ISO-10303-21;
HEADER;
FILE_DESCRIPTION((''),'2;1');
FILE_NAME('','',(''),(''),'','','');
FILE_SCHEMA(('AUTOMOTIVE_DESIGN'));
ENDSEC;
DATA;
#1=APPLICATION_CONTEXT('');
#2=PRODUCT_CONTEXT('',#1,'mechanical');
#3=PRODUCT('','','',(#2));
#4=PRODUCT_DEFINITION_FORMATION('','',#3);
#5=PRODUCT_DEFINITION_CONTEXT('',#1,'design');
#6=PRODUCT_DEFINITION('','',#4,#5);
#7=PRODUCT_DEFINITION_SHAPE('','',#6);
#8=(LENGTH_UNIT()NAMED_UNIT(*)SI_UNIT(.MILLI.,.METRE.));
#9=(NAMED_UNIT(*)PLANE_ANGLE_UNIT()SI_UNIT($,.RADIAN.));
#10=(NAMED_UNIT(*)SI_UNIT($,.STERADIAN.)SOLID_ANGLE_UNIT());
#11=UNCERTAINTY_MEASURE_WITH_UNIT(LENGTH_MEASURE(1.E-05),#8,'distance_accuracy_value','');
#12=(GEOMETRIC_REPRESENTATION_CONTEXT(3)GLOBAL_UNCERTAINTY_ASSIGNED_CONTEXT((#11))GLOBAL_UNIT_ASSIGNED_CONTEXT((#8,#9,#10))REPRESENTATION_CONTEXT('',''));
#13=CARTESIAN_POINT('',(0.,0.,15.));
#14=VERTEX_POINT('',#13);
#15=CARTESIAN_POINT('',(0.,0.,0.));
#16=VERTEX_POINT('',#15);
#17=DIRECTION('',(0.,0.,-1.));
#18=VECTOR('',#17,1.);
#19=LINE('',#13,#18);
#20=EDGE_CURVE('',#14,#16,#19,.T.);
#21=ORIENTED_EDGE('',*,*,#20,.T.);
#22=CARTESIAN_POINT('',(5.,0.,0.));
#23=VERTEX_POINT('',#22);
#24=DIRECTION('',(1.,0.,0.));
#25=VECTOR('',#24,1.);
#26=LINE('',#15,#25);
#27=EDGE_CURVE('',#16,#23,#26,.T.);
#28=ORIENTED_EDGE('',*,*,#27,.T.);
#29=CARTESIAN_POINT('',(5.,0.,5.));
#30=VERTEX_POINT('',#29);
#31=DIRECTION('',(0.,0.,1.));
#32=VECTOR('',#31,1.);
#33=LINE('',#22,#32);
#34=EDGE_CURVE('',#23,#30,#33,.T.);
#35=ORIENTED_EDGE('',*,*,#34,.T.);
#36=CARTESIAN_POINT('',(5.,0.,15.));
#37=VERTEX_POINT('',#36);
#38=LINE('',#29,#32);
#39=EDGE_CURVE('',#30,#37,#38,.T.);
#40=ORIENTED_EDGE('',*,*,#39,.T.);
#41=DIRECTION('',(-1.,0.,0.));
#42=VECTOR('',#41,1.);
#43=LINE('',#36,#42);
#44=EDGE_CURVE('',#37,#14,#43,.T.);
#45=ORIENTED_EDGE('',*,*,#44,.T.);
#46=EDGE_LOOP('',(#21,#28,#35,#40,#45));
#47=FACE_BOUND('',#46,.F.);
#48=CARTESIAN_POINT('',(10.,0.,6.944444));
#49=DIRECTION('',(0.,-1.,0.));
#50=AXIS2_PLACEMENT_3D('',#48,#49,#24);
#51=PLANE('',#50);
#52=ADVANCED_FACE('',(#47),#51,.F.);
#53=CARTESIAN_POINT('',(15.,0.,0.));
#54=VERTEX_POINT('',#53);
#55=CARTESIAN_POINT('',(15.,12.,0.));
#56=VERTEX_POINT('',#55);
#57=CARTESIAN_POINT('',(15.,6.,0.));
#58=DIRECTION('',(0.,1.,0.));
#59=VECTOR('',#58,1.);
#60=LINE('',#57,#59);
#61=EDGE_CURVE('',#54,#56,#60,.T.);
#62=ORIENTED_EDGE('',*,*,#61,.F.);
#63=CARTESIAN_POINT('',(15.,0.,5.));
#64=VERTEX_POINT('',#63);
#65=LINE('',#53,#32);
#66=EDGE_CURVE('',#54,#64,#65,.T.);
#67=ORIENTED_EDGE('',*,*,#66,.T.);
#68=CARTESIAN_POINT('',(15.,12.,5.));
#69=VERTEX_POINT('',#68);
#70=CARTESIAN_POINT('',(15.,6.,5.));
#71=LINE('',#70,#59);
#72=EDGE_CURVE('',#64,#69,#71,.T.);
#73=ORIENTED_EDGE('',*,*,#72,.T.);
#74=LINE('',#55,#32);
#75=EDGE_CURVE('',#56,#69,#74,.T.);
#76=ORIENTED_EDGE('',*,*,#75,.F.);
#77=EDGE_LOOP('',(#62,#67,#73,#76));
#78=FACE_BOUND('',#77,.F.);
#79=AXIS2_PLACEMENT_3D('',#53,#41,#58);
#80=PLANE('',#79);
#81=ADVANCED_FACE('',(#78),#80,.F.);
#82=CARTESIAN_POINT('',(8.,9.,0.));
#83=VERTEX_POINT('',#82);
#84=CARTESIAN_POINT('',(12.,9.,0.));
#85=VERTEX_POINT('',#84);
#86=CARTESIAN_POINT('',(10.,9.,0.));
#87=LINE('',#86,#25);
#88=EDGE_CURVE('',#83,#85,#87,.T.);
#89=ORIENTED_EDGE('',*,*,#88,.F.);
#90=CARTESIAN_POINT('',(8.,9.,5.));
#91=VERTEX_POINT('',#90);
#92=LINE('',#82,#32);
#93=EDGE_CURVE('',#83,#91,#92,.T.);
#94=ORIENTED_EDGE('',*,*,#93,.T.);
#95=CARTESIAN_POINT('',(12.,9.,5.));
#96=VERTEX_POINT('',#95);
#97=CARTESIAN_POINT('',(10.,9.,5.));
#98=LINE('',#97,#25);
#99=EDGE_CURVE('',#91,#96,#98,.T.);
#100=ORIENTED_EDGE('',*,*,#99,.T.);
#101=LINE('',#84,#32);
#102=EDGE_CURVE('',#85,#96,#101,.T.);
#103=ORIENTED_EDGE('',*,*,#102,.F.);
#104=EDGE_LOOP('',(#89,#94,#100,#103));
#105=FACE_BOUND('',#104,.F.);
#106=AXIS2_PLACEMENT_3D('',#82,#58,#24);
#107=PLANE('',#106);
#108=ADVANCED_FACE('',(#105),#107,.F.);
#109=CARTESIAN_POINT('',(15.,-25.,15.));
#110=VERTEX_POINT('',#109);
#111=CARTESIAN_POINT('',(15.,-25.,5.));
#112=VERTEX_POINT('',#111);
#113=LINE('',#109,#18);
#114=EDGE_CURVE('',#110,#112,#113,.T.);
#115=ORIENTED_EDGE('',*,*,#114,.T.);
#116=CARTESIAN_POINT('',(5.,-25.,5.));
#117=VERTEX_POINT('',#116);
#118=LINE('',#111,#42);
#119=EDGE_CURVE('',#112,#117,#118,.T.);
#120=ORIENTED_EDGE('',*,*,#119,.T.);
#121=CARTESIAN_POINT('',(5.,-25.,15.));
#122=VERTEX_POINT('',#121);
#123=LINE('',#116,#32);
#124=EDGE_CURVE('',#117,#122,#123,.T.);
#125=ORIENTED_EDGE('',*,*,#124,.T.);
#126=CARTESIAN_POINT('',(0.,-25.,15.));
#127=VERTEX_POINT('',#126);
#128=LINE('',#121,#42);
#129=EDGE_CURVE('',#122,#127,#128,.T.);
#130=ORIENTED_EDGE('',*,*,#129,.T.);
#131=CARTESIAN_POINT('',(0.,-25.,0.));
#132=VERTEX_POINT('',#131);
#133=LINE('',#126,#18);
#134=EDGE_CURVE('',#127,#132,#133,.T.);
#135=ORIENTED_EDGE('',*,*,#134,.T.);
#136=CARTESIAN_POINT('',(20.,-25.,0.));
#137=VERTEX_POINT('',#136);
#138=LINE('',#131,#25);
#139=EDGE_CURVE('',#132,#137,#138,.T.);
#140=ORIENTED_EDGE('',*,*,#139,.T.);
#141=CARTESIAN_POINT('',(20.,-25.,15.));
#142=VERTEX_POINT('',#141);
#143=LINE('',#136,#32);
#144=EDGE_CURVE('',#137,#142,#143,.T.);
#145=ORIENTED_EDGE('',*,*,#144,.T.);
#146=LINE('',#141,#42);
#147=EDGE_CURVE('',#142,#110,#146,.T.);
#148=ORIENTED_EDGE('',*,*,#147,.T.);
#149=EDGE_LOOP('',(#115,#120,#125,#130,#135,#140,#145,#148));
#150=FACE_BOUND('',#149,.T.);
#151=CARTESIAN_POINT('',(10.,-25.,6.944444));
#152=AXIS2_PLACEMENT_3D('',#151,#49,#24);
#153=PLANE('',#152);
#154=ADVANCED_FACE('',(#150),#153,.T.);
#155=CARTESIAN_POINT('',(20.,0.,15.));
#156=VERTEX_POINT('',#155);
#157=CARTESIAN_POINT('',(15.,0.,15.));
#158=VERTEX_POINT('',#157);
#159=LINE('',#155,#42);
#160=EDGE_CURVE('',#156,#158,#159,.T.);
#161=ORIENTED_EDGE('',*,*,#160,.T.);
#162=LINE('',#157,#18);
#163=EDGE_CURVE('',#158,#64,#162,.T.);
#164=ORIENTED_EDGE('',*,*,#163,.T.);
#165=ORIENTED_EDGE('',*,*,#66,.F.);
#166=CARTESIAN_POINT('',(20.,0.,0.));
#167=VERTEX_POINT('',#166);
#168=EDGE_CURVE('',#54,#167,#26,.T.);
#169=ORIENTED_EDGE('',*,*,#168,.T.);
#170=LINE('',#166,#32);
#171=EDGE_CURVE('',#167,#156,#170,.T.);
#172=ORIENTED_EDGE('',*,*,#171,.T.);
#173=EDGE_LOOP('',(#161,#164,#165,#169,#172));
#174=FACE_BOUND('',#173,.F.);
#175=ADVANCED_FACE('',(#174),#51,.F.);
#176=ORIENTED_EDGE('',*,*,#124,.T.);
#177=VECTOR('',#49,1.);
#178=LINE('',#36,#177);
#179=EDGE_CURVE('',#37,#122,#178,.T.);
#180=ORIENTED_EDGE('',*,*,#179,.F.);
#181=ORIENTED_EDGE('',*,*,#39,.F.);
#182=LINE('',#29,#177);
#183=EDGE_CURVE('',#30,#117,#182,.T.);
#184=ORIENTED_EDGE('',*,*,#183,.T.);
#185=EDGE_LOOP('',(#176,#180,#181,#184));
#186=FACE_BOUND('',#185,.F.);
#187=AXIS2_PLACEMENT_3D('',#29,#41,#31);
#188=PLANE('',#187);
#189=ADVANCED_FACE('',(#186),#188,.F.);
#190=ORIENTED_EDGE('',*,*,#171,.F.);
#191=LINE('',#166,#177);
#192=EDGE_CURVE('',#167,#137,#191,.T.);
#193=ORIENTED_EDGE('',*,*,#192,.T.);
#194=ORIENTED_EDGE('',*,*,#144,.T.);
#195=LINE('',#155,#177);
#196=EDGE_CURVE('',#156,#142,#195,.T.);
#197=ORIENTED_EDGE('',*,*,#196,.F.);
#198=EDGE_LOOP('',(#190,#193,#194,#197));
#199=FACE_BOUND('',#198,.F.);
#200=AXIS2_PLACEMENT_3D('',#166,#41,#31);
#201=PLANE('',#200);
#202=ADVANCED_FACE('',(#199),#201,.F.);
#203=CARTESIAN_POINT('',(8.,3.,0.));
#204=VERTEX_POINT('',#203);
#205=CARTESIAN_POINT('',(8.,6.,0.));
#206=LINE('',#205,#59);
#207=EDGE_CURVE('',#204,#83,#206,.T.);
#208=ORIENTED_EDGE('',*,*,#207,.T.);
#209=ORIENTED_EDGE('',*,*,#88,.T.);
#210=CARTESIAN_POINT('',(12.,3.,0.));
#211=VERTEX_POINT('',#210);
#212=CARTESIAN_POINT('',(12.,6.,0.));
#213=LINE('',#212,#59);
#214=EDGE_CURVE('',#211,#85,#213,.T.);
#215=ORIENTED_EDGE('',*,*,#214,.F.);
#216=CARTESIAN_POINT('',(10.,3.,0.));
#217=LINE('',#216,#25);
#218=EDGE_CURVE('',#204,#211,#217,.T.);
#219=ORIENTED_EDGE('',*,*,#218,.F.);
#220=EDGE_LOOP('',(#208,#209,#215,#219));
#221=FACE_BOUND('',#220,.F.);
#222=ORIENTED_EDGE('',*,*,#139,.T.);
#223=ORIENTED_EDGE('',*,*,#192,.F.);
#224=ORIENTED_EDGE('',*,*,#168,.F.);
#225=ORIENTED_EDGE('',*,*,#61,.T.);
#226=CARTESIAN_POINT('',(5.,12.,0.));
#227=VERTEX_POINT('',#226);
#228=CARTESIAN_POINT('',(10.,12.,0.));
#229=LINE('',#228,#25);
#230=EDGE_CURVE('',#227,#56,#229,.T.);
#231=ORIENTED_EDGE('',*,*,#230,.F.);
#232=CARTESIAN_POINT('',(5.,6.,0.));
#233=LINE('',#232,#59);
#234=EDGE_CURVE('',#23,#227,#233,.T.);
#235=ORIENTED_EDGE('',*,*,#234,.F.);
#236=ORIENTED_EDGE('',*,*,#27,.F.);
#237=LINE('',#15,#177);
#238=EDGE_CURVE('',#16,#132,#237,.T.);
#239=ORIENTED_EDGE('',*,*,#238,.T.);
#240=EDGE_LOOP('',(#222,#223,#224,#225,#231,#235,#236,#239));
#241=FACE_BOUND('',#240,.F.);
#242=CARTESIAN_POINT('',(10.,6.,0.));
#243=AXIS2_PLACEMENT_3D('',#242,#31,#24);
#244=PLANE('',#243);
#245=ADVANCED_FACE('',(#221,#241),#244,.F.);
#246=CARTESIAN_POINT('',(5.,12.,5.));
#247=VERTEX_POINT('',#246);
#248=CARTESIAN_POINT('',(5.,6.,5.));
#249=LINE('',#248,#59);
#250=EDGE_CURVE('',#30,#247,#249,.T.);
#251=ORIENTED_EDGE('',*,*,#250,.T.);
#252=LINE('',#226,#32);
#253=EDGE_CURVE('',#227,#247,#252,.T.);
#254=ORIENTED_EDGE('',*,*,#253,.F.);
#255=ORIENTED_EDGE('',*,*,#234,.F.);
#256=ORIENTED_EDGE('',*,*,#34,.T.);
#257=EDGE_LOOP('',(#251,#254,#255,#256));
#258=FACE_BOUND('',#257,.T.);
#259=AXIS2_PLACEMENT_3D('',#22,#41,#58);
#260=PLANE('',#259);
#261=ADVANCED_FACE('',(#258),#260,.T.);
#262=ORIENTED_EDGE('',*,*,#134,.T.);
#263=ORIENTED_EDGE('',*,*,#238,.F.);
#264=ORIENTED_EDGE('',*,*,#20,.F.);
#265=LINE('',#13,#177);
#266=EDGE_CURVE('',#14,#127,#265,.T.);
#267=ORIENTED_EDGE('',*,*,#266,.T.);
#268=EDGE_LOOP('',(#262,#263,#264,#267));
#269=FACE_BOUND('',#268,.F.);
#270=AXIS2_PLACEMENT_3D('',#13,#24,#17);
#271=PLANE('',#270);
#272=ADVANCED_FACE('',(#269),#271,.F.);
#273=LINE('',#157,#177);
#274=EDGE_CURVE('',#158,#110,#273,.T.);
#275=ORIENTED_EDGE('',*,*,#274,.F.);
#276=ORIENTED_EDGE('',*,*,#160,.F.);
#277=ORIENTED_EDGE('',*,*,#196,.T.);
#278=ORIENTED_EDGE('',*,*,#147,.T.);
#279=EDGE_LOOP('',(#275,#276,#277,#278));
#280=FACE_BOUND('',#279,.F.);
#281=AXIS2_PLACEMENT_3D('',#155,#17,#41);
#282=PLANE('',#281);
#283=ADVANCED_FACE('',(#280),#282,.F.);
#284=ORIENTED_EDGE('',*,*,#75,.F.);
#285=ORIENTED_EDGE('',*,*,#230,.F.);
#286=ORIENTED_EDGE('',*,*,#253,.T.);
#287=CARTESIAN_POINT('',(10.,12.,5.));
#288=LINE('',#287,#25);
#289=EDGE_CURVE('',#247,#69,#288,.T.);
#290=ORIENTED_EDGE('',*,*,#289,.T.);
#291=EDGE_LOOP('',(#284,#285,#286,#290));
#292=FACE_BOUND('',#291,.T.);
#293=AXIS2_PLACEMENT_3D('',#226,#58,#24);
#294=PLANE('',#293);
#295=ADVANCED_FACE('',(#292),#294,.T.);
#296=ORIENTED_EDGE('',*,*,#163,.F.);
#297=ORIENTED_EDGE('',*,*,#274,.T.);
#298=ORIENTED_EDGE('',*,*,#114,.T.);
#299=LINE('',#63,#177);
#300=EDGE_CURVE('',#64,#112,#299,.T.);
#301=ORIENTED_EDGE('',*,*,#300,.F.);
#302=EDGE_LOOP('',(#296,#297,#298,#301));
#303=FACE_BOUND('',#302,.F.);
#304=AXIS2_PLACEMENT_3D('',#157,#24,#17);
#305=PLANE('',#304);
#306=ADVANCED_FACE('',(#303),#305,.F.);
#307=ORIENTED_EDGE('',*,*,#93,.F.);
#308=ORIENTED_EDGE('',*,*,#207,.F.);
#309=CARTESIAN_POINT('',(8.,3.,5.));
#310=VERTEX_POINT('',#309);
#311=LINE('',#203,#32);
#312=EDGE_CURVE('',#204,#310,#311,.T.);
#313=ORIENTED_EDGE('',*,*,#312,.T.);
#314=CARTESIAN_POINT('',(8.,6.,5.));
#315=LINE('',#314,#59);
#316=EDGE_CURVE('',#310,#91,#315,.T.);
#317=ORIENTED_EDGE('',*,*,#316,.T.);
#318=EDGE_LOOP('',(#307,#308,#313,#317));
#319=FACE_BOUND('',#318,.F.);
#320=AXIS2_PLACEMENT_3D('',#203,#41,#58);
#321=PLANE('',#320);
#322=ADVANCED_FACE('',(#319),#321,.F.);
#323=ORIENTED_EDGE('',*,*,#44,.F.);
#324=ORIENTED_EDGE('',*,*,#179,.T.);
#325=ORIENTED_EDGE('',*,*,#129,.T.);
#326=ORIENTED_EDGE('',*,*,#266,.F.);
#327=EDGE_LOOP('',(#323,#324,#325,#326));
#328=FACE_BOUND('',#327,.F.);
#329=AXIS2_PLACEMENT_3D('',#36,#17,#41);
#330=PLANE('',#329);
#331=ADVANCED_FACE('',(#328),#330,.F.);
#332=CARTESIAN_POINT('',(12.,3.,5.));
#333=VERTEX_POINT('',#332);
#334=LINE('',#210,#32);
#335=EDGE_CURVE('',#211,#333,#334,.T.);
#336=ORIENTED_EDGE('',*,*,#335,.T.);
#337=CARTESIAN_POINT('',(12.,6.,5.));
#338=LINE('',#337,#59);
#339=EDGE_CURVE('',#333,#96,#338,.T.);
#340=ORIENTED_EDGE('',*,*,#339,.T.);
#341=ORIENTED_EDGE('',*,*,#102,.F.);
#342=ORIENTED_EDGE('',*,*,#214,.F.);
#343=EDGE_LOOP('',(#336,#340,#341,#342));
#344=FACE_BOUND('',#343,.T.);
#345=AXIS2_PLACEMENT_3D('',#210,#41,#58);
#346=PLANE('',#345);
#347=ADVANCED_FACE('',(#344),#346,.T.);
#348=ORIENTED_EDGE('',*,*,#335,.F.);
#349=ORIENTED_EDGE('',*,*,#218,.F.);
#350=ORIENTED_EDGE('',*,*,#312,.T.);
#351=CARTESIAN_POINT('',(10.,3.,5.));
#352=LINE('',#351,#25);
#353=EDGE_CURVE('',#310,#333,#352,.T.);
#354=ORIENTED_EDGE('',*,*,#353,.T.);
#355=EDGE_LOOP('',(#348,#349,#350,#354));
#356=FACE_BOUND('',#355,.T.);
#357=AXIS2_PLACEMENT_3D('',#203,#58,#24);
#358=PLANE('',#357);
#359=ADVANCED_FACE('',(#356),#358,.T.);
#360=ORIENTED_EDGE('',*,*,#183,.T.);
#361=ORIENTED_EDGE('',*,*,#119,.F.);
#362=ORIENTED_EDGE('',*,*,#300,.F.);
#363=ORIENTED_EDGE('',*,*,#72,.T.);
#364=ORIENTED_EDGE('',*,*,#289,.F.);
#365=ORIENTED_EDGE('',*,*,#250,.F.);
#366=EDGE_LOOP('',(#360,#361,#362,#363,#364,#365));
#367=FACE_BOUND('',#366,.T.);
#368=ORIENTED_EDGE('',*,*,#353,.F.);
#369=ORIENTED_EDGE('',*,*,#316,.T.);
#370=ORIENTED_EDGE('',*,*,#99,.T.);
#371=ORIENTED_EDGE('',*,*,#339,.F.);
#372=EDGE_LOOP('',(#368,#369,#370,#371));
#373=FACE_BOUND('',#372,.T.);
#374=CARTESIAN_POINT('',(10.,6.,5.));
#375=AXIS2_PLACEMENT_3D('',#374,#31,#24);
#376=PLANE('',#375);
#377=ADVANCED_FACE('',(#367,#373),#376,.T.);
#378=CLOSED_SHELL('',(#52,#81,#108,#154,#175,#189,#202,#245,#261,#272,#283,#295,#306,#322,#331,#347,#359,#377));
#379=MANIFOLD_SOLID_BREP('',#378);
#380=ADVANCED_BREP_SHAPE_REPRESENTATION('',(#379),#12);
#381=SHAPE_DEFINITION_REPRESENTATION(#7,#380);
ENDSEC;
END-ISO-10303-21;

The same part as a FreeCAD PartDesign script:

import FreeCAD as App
import Part
import Sketcher
Q = App.Units.Quantity


def add_polygon(sketch, points):
    """Adds a closed chain of lines whose ends are joined by coincident constraints."""
    first, n = sketch.GeometryCount, len(points)
    for a, b in zip(points, points[1:] + points[:1]):
        sketch.addGeometry(Part.LineSegment(App.Vector(*a, 0), App.Vector(*b, 0)), False)
    for i in range(n):
        sketch.addConstraint(Sketcher.Constraint("Coincident", first + i, 2, first + (i + 1) % n, 1))

doc = App.newDocument("Part")
body = doc.addObject("PartDesign::Body", "Body")

# Sketch on XZ plane
sketch1 = body.newObject("Sketcher::SketchObject", "Sketch")
sketch1.AttachmentSupport = (doc.getObject("XZ_Plane"), [""])
sketch1.MapMode = "FlatFace"
add_polygon(sketch1, [(0, 15), (0, 0), (20, 0), (20, 15), (15, 15), (15, 5), (5, 5), (5, 15)])  # lines 0-7
sketch1.addConstraint(Sketcher.Constraint("Vertical", 0))
sketch1.addConstraint(Sketcher.Constraint("Horizontal", 1))
sketch1.addConstraint(Sketcher.Constraint("Vertical", 2))
sketch1.addConstraint(Sketcher.Constraint("Horizontal", 3))
sketch1.addConstraint(Sketcher.Constraint("Vertical", 4))
sketch1.addConstraint(Sketcher.Constraint("Horizontal", 5))
sketch1.addConstraint(Sketcher.Constraint("Vertical", 6))
sketch1.addConstraint(Sketcher.Constraint("Horizontal", 7))
sketch1.addConstraint(Sketcher.Constraint("Coincident", 0, 2, -1, 1))
sketch1.addConstraint(Sketcher.Constraint("Horizontal", 3, 2, 6, 2))
sketch1.addConstraint(Sketcher.Constraint("Equal", 3, 7))
sketch1.addConstraint(Sketcher.Constraint("Equal", 5, 4))
sketch1.addConstraint(Sketcher.Constraint("DistanceX", 1, 1, 1, 2, Q("20 mm")))
sketch1.addConstraint(Sketcher.Constraint("DistanceX", 3, 2, 3, 1, Q("5 mm")))
sketch1.addConstraint(Sketcher.Constraint("DistanceY", 0, 2, 0, 1, Q("15 mm")))
pad1 = body.newObject("PartDesign::Pad", "Pad")
pad1.Profile = sketch1
pad1.Length = 25

# Sketch on XY plane
sketch2 = body.newObject("Sketcher::SketchObject", "Sketch001")
sketch2.AttachmentSupport = (doc.getObject("XY_Plane"), [""])
sketch2.MapMode = "FlatFace"
add_polygon(sketch2, [(5, 12), (5, 0), (15, 0), (15, 12)])  # lines 0-3
add_polygon(sketch2, [(12, 3), (8, 3), (8, 9), (12, 9)])  # lines 4-7
sketch2.addConstraint(Sketcher.Constraint("Vertical", 0))
sketch2.addConstraint(Sketcher.Constraint("Horizontal", 1))
sketch2.addConstraint(Sketcher.Constraint("Vertical", 2))
sketch2.addConstraint(Sketcher.Constraint("Horizontal", 3))
sketch2.addConstraint(Sketcher.Constraint("Horizontal", 4))
sketch2.addConstraint(Sketcher.Constraint("Vertical", 5))
sketch2.addConstraint(Sketcher.Constraint("Horizontal", 6))
sketch2.addConstraint(Sketcher.Constraint("Vertical", 7))
sketch2.addConstraint(Sketcher.Constraint("PointOnObject", 0, 2, -1))
sketch2.addConstraint(Sketcher.Constraint("DistanceX", 1, 1, 1, 2, Q("10 mm")))
sketch2.addConstraint(Sketcher.Constraint("DistanceX", 4, 2, 4, 1, Q("4 mm")))
sketch2.addConstraint(Sketcher.Constraint("DistanceY", 0, 2, 0, 1, Q("12 mm")))
sketch2.addConstraint(Sketcher.Constraint("DistanceY", 5, 1, 5, 2, Q("6 mm")))
sketch2.addConstraint(Sketcher.Constraint("DistanceX", -1, 1, 0, 2, Q("5 mm")))
sketch2.addConstraint(Sketcher.Constraint("DistanceX", -1, 1, 4, 2, Q("8 mm")))
sketch2.addConstraint(Sketcher.Constraint("DistanceY", -1, 1, 4, 2, Q("3 mm")))
pad2 = body.newObject("PartDesign::Pad", "Pad001")
pad2.Profile = sketch2
pad2.Length = 5

doc.recompute()
